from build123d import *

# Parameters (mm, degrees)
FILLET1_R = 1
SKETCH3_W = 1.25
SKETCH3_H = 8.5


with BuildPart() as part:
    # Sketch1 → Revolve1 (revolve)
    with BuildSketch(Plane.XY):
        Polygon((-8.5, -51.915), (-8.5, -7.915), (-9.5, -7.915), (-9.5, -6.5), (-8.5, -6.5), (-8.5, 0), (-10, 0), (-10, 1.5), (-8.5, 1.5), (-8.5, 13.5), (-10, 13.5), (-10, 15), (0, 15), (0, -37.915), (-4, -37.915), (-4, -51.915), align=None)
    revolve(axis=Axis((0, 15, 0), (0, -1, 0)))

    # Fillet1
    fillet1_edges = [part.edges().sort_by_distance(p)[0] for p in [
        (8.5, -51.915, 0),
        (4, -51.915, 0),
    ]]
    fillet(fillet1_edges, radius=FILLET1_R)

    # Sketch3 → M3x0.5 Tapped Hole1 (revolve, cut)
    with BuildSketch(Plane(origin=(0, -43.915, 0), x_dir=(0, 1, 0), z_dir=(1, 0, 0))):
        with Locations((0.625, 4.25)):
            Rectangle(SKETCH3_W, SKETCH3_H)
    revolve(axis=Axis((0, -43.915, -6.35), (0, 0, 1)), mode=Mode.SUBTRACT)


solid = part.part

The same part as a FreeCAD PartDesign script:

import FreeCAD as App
import Part
import Sketcher
from FreeCAD import Vector
Q = App.Units.Quantity


def edges_at(feature, points):
    """Names of the edges that pass closest to the given points."""
    edges = feature.Shape.Edges
    near = lambda p: min(range(len(edges)), key=lambda i: edges[i].distToShape(Part.Vertex(*p))[0])
    return sorted({f"Edge{near(p) + 1}" for p in points})

doc = App.newDocument("Part")
body = doc.addObject("PartDesign::Body", "Body")

sketch1 = body.newObject("Sketcher::SketchObject", "Sketch")
sketch1.AttachmentSupport = (doc.getObject("XY_Plane"), [""])
sketch1.MapMode = "FlatFace"
sketch1.addGeometry([
    Part.LineSegment(Vector(-8.5, -7.915, 0), Vector(-8.5, -51.915, 0)),
    Part.LineSegment(Vector(-8.5, -51.915, 0), Vector(-4, -51.915, 0)),
    Part.LineSegment(Vector(-4, -51.915, 0), Vector(-4, -37.915, 0)),
    Part.LineSegment(Vector(-4, -37.915, 0), Vector(0, -37.915, 0)),
    Part.LineSegment(Vector(0, -37.915, 0), Vector(0, 15, 0)),
    Part.LineSegment(Vector(0, 15, 0), Vector(-10, 15, 0)),
    Part.LineSegment(Vector(-10, 15, 0), Vector(-10, 13.5, 0)),
    Part.LineSegment(Vector(-10, 13.5, 0), Vector(-8.5, 13.5, 0)),
    Part.LineSegment(Vector(-8.5, 13.5, 0), Vector(-8.5, 1.5, 0)),
    Part.LineSegment(Vector(-8.5, 1.5, 0), Vector(-10, 1.5, 0)),
    Part.LineSegment(Vector(-10, 1.5, 0), Vector(-10, 0, 0)),
    Part.LineSegment(Vector(-10, 0, 0), Vector(-8.5, 0, 0)),
    Part.LineSegment(Vector(-8.5, 0, 0), Vector(-8.5, -6.5, 0)),
    Part.LineSegment(Vector(-8.5, -6.5, 0), Vector(-9.5, -6.5, 0)),
    Part.LineSegment(Vector(-9.5, -6.5, 0), Vector(-9.5, -7.915, 0)),
    Part.LineSegment(Vector(-9.5, -7.915, 0), Vector(-8.5, -7.915, 0)),
], False)
sketch1.addConstraint([
    Sketcher.Constraint("Coincident", 0, 2, 1, 1),
    Sketcher.Constraint("Coincident", 1, 2, 2, 1),
    Sketcher.Constraint("Coincident", 2, 2, 3, 1),
    Sketcher.Constraint("Coincident", 3, 2, 4, 1),
    Sketcher.Constraint("Coincident", 4, 2, 5, 1),
    Sketcher.Constraint("Coincident", 5, 2, 6, 1),
    Sketcher.Constraint("Coincident", 6, 2, 7, 1),
    Sketcher.Constraint("Coincident", 7, 2, 8, 1),
    Sketcher.Constraint("Coincident", 8, 2, 9, 1),
    Sketcher.Constraint("Coincident", 9, 2, 10, 1),
    Sketcher.Constraint("Coincident", 10, 2, 11, 1),
    Sketcher.Constraint("Coincident", 11, 2, 12, 1),
    Sketcher.Constraint("Coincident", 12, 2, 13, 1),
    Sketcher.Constraint("Coincident", 13, 2, 14, 1),
    Sketcher.Constraint("Coincident", 14, 2, 15, 1),
    Sketcher.Constraint("Coincident", 15, 2, 0, 1),
    Sketcher.Constraint("Vertical", 0),
    Sketcher.Constraint("Horizontal", 1),
    Sketcher.Constraint("Vertical", 2),
    Sketcher.Constraint("Horizontal", 3),
    Sketcher.Constraint("Vertical", 4),
    Sketcher.Constraint("Horizontal", 5),
    Sketcher.Constraint("Vertical", 6),
    Sketcher.Constraint("Horizontal", 7),
    Sketcher.Constraint("Vertical", 8),
    Sketcher.Constraint("Horizontal", 9),
    Sketcher.Constraint("Vertical", 10),
    Sketcher.Constraint("Horizontal", 11),
    Sketcher.Constraint("Vertical", 12),
    Sketcher.Constraint("Horizontal", 13),
    Sketcher.Constraint("Vertical", 14),
    Sketcher.Constraint("Horizontal", 15),
    Sketcher.Constraint("PointOnObject", 3, 2, -2),
    Sketcher.Constraint("PointOnObject", 10, 2, -1),
    Sketcher.Constraint("Vertical", 0, 2, 7, 2),
    Sketcher.Constraint("Vertical", 6, 2, 9, 2),
    Sketcher.Constraint("Vertical", 8, 2, 11, 2),
    Sketcher.Constraint("Equal", 11, 6),
    Sketcher.Constraint("Equal", 6, 10),
    Sketcher.Constraint("DistanceX", 3, 1, 3, 2, Q("4 mm")),
    Sketcher.Constraint("DistanceX", 5, 2, 5, 1, Q("10 mm")),
    Sketcher.Constraint("DistanceX", 13, 2, 13, 1, Q("1 mm")),
    Sketcher.Constraint("DistanceY", 0, 2, 0, 1, Q("44 mm")),
    Sketcher.Constraint("DistanceY", 2, 1, 2, 2, Q("14 mm")),
    Sketcher.Constraint("DistanceY", 8, 2, 8, 1, Q("12 mm")),
    Sketcher.Constraint("DistanceX", 1, 1, 1, 2, Q("4.5 mm")),
    Sketcher.Constraint("DistanceY", 12, 2, 12, 1, Q("6.5 mm")),
    Sketcher.Constraint("DistanceY", 4, 1, 4, 2, Q("52.915 mm")),
])
revolution = body.newObject("PartDesign::Revolution", "Revolution")
revolution.Profile = sketch1
revolution.ReferenceAxis = (sketch1, ["V_Axis"])
revolution.Angle = 360
doc.recompute()

fillet = body.newObject("PartDesign::Fillet", "Fillet")
fillet.Base = (revolution, edges_at(revolution, [(8.5, -51.915, 0), (4, -51.915, 0)]))
fillet.Radius = 1

sketch2 = body.newObject("Sketcher::SketchObject", "Sketch001")
sketch2.AttachmentSupport = (doc.getObject("YZ_Plane"), [""])
sketch2.MapMode = "FlatFace"
sketch2.addGeometry([
    Part.LineSegment(Vector(-43.915, 8.5, 0), Vector(-43.915, 0, 0)),
    Part.LineSegment(Vector(-43.915, 0, 0), Vector(-42.665, 0, 0)),
    Part.LineSegment(Vector(-42.665, 0, 0), Vector(-42.665, 8.5, 0)),
    Part.LineSegment(Vector(-42.665, 8.5, 0), Vector(-43.915, 8.5, 0)),
], False)
sketch2.addGeometry(Part.LineSegment(Vector(-43.915, 0, 0), Vector(-43.915, 8.5, 0)), True)
sketch2.addConstraint([
    Sketcher.Constraint("Coincident", 0, 2, 1, 1),
    Sketcher.Constraint("Coincident", 1, 2, 2, 1),
    Sketcher.Constraint("Coincident", 2, 2, 3, 1),
    Sketcher.Constraint("Coincident", 3, 2, 0, 1),
    Sketcher.Constraint("Vertical", 0),
    Sketcher.Constraint("Horizontal", 1),
    Sketcher.Constraint("Vertical", 2),
    Sketcher.Constraint("Horizontal", 3),
    Sketcher.Constraint("Vertical", 4),
    Sketcher.Constraint("Coincident", 4, 1, 0, 2),
    Sketcher.Constraint("PointOnObject", 0, 2, -1),
    Sketcher.Constraint("Horizontal", 2, 2, 4, 2),
    Sketcher.Constraint("DistanceY", 0, 2, 0, 1, Q("8.5 mm")),
    Sketcher.Constraint("DistanceX", 1, 1, 1, 2, Q("1.25 mm")),
    Sketcher.Constraint("DistanceX", 0, 2, -1, 1, Q("43.915 mm")),
])
groove = body.newObject("PartDesign::Groove", "Groove")
groove.Profile = sketch2
groove.ReferenceAxis = (sketch2, ["Axis0"])
groove.Angle = 360

doc.recompute()
